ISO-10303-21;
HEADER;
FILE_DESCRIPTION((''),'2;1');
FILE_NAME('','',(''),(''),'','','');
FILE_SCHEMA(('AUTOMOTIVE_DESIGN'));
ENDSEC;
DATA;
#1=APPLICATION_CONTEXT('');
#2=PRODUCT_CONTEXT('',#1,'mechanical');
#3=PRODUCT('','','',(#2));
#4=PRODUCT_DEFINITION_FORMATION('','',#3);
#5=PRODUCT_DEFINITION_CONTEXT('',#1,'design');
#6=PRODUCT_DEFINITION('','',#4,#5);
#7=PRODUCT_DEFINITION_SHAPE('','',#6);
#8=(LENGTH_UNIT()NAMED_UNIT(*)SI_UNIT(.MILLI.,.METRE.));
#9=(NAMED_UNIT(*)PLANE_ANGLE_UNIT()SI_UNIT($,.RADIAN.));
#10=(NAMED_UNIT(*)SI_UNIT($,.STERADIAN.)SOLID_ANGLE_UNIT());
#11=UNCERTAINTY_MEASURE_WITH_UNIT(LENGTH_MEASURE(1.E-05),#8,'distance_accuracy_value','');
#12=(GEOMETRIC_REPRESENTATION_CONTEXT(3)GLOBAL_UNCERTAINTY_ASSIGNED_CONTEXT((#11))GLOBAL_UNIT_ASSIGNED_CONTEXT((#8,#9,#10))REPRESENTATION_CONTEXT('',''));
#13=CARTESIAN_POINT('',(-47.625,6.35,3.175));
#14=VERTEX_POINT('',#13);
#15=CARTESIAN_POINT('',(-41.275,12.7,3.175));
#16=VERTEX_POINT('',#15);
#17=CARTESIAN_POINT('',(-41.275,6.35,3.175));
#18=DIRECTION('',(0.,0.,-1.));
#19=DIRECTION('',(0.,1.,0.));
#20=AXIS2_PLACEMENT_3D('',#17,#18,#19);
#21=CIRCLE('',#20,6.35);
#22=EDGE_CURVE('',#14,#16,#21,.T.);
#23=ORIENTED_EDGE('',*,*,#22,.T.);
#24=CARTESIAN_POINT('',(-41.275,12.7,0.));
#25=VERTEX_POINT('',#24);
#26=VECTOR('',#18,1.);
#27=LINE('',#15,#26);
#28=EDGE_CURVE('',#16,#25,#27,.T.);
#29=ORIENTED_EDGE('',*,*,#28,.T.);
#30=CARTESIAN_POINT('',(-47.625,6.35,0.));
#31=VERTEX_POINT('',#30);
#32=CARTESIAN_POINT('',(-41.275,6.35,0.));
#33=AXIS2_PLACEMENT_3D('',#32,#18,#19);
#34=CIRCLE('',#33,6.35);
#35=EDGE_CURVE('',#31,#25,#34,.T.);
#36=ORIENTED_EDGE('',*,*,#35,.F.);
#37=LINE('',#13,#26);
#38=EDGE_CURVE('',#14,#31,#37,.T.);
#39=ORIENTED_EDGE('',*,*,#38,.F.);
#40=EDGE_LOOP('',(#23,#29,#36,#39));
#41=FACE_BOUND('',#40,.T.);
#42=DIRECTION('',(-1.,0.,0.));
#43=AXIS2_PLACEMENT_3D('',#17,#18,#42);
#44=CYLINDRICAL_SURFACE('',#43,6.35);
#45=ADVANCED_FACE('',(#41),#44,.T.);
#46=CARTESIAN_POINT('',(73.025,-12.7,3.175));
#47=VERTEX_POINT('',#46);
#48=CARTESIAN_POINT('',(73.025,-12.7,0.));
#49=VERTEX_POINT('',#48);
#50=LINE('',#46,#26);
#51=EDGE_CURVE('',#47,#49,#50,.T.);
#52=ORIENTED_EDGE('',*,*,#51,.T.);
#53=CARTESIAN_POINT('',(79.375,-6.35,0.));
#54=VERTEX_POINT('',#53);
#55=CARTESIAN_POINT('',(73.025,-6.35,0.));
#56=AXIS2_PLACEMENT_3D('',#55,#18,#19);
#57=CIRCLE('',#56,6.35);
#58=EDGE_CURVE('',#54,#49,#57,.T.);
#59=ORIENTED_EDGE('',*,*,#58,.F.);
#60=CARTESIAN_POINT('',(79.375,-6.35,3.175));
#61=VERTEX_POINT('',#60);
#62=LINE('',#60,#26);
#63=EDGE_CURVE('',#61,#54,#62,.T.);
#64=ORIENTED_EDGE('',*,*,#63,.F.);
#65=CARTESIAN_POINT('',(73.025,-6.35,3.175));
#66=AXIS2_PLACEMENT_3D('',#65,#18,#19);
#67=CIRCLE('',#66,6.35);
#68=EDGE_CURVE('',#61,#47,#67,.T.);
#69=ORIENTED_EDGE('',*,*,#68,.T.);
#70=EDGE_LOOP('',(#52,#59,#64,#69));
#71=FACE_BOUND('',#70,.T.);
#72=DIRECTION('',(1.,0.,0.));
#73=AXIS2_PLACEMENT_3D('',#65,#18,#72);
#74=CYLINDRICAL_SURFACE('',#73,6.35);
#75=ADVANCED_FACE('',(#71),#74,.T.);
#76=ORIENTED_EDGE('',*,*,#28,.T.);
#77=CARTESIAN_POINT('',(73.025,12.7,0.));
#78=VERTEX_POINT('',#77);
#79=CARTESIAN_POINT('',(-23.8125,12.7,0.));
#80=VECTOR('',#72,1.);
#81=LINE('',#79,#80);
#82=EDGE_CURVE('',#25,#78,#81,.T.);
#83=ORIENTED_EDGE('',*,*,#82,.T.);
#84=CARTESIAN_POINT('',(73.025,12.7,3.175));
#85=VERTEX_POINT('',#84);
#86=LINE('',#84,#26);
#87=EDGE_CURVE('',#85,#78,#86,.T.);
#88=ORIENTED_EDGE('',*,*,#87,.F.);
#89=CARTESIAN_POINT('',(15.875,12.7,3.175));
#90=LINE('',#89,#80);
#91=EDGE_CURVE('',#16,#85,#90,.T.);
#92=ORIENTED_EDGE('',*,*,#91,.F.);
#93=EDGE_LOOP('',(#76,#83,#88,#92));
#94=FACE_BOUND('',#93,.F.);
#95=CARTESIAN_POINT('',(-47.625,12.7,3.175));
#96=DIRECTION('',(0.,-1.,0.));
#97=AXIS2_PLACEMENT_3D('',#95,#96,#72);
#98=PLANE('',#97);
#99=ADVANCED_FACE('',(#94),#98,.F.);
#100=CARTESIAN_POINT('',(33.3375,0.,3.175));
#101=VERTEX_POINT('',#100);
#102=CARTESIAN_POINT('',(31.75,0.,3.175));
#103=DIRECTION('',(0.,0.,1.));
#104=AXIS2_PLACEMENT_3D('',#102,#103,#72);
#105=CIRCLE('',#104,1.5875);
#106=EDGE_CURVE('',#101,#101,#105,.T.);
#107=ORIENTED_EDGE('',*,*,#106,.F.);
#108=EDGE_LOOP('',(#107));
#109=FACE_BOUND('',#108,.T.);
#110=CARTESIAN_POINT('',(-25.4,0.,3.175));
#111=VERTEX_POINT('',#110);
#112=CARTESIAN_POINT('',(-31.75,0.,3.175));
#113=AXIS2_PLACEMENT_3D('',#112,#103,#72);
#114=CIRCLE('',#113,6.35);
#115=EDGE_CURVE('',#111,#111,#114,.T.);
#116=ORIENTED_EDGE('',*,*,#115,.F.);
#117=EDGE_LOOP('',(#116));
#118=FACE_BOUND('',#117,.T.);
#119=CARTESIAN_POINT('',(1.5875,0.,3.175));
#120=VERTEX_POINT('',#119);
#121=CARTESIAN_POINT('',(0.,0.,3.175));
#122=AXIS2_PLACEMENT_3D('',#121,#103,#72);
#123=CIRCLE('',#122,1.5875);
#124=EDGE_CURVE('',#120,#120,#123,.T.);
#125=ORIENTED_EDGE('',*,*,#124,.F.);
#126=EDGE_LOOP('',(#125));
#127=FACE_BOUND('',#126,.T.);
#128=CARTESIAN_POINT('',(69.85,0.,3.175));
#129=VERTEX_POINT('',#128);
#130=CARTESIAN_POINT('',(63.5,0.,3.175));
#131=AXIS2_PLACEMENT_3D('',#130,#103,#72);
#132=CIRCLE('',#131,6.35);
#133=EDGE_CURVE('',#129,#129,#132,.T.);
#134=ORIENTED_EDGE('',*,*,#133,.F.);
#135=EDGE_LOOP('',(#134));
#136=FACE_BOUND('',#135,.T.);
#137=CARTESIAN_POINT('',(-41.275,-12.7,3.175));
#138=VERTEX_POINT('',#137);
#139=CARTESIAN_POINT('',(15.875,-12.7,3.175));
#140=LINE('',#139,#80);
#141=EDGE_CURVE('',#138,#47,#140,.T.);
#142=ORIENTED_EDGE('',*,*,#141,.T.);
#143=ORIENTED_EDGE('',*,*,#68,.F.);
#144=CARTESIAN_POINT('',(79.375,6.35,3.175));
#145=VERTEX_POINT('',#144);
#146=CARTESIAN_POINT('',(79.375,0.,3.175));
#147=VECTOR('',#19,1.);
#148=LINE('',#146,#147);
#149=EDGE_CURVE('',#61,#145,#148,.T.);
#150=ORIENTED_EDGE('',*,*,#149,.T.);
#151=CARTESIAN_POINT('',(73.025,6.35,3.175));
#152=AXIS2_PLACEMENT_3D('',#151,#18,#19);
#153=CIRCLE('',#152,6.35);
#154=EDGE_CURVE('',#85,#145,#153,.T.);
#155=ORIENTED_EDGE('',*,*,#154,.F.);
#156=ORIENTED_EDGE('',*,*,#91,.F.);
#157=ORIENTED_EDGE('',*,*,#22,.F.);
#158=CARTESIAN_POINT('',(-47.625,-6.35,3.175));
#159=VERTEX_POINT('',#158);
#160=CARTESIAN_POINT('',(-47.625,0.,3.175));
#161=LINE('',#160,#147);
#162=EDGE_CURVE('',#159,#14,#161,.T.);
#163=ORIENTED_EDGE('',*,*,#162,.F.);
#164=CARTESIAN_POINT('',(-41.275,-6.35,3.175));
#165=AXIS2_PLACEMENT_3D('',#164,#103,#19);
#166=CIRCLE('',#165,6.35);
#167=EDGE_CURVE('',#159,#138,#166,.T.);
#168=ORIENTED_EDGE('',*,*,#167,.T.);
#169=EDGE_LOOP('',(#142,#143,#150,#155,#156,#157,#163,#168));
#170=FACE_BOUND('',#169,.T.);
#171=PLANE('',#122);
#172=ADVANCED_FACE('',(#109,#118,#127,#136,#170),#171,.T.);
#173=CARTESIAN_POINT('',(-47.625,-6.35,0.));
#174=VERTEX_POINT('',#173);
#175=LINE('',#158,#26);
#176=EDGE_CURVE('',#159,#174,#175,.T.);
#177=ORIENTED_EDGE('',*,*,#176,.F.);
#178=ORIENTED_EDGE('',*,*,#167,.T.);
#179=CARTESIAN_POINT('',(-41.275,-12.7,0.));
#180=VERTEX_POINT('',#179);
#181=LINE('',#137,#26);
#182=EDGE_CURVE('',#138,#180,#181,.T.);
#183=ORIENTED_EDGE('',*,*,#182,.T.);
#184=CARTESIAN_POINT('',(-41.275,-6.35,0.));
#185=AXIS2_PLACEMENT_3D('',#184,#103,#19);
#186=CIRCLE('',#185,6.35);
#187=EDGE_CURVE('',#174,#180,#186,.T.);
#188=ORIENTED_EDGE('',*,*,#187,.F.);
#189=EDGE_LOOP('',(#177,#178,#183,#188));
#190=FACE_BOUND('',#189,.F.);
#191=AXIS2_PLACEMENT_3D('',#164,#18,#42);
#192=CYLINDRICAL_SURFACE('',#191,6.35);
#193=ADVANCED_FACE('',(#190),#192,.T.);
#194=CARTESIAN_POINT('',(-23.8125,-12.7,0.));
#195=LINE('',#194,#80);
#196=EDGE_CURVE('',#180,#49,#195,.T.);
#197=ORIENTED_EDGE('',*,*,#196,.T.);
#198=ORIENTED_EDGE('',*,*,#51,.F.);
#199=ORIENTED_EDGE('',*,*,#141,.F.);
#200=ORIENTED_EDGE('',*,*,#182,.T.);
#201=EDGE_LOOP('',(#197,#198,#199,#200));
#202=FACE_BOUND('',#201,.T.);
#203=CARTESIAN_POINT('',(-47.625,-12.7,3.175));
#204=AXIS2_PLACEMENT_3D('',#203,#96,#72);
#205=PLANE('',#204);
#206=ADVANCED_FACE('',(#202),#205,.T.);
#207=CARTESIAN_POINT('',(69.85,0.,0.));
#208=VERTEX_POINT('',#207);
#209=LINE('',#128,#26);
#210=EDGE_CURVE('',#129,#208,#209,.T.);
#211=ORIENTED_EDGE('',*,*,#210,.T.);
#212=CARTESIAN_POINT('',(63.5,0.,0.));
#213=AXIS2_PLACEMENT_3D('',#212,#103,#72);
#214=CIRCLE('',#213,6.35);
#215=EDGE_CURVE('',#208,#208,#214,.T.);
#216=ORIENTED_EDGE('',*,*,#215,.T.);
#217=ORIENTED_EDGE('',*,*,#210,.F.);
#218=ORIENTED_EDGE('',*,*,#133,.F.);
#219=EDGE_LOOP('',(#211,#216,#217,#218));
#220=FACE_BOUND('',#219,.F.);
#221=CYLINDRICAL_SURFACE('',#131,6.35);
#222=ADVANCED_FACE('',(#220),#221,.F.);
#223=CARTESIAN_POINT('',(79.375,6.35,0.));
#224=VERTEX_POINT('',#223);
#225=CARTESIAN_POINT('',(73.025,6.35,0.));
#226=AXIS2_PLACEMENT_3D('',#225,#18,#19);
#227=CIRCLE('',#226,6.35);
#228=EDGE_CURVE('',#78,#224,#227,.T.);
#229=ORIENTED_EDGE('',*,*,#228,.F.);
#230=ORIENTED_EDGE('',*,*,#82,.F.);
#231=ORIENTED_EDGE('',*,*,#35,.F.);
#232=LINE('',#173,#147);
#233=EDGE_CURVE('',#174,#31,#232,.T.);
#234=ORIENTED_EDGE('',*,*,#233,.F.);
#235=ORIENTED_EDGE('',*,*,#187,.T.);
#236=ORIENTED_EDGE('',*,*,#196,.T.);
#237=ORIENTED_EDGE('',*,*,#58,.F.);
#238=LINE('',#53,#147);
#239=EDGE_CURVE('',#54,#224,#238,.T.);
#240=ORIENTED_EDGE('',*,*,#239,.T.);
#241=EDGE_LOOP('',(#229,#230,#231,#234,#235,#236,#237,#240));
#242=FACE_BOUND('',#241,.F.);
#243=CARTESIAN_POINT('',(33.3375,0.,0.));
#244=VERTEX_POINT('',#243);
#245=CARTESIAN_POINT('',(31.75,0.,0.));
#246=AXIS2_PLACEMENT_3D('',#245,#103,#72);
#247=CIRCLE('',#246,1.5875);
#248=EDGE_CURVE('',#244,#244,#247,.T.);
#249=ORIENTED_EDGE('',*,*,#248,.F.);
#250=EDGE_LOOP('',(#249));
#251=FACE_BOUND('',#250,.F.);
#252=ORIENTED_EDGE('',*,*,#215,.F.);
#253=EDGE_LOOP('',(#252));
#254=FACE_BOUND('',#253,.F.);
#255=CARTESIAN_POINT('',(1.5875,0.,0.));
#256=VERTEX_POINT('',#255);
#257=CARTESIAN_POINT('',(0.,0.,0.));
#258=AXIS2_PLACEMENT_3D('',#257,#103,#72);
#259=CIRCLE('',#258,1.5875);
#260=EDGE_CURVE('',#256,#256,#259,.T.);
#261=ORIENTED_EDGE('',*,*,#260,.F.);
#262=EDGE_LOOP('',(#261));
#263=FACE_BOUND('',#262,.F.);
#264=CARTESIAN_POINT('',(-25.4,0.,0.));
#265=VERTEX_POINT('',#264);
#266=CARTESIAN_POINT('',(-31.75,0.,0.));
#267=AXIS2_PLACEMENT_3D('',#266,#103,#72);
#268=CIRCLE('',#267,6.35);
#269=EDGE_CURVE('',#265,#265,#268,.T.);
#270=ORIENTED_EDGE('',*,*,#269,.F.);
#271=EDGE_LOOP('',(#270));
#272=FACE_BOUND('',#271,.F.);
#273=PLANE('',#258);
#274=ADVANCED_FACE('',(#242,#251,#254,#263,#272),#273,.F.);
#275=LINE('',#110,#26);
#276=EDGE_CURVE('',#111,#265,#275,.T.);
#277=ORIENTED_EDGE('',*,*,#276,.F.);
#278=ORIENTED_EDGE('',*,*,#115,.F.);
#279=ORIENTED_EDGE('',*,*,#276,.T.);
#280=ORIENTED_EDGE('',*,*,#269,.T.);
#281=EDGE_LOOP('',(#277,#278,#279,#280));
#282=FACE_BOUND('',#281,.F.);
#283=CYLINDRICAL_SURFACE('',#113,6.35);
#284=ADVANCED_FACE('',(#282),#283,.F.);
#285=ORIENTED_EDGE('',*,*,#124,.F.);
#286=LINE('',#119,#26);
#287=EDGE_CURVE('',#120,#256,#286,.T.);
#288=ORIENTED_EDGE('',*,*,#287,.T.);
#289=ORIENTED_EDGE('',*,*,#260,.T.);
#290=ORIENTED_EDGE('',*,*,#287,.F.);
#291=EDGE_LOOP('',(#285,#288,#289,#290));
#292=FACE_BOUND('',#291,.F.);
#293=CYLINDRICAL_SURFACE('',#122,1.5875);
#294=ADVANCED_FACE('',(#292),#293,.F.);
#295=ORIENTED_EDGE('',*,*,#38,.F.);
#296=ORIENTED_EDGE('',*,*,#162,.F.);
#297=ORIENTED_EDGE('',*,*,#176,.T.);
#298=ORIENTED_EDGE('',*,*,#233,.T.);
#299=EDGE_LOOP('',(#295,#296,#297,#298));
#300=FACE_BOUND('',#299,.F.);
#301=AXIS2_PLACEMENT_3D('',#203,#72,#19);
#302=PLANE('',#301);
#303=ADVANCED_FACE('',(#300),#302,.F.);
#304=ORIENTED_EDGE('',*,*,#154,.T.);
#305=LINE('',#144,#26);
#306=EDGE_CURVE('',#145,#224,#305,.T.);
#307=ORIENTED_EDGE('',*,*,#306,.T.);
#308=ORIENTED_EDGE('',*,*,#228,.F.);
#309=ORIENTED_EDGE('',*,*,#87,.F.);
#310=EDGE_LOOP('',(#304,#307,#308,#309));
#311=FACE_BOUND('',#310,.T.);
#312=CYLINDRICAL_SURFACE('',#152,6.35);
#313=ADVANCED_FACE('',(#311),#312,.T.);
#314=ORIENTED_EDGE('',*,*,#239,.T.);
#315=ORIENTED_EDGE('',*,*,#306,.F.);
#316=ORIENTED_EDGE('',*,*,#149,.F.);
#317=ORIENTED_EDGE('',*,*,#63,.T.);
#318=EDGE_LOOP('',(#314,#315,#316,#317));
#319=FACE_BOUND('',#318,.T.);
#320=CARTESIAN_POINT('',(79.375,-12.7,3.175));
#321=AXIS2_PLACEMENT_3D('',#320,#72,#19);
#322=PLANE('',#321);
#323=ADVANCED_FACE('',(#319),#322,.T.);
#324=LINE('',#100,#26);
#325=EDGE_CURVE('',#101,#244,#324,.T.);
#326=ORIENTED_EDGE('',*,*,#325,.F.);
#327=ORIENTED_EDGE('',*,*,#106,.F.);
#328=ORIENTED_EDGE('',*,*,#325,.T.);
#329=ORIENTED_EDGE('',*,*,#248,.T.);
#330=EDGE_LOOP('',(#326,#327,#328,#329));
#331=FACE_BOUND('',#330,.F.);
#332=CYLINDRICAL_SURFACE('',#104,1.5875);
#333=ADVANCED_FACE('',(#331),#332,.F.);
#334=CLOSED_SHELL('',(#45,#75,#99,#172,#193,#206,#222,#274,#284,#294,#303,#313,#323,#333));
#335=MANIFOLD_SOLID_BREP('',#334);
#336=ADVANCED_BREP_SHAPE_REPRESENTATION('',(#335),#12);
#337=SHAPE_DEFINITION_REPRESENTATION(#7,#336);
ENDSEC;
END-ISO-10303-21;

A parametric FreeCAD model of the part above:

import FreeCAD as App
import Part
import Sketcher
from FreeCAD import Vector
Q = App.Units.Quantity


def edges_at(feature, points):
    """Names of the edges that pass closest to the given points."""
    edges = feature.Shape.Edges
    near = lambda p: min(range(len(edges)), key=lambda i: edges[i].distToShape(Part.Vertex(*p))[0])
    return sorted({f"Edge{near(p) + 1}" for p in points})

doc = App.newDocument("Part")
body = doc.addObject("PartDesign::Body", "Body")

# Sketch on XY plane
sketch1 = body.newObject("Sketcher::SketchObject", "Sketch")
sketch1.AttachmentSupport = (doc.getObject("XY_Plane"), [""])
sketch1.MapMode = "FlatFace"
sketch1.addGeometry([
    Part.LineSegment(Vector(-102, 76, 0), Vector(-102, -76, 0)),
    Part.LineSegment(Vector(-102, -76, 0), Vector(102, -76, 0)),
    Part.LineSegment(Vector(102, -76, 0), Vector(102, 76, 0)),
    Part.LineSegment(Vector(102, 76, 0), Vector(-102, 76, 0)),
], False)
sketch1.addConstraint([
    Sketcher.Constraint("Coincident", 0, 2, 1, 1),
    Sketcher.Constraint("Coincident", 1, 2, 2, 1),
    Sketcher.Constraint("Coincident", 2, 2, 3, 1),
    Sketcher.Constraint("Coincident", 3, 2, 0, 1),
    Sketcher.Constraint("Vertical", 0),
    Sketcher.Constraint("Horizontal", 1),
    Sketcher.Constraint("Vertical", 2),
    Sketcher.Constraint("Horizontal", 3),
    Sketcher.Constraint("Symmetric", 0, 2, 2, 2, -1, 1),
    Sketcher.Constraint("DistanceX", 1, 1, 1, 2, Q("8 in")),
    Sketcher.Constraint("DistanceY", 0, 2, 0, 1, Q("6 in")),
])
pad1 = body.newObject("PartDesign::Pad", "Pad")
pad1.Profile = sketch1
pad1.Length = Q("0.125 in")

# Sketch on XY plane
sketch2 = body.newObject("Sketcher::SketchObject", "Sketch001")
sketch2.AttachmentSupport = (doc.getObject("XY_Plane"), [""])
sketch2.MapMode = "FlatFace"
sketch2.AttachmentOffset = App.Placement(Vector(0, 0, 0.125 * 25.4), App.Rotation())
sketch2.addGeometry([
    Part.Circle(Vector(-32, 0, 0), Vector(0, 0, 1), 6),
    Part.Circle(Vector(64, 0, 0), Vector(0, 0, 1), 6),
], False)
sketch2.addConstraint([
    Sketcher.Constraint("Equal", 0, 1),
    Sketcher.Constraint("PointOnObject", 0, 3, -1),
    Sketcher.Constraint("PointOnObject", 1, 3, -1),
    Sketcher.Constraint("Diameter", 0, Q("0.5 in")),
    Sketcher.Constraint("DistanceX", -1, 1, 1, 3, Q("2.5 in")),
    Sketcher.Constraint("DistanceX", 0, 3, -1, 1, Q("1.25 in")),
])
pocket1 = body.newObject("PartDesign::Pocket", "Pocket")
pocket1.Profile = sketch2
pocket1.Type = "ThroughAll"

# Sketch on XY plane
sketch3 = body.newObject("Sketcher::SketchObject", "Sketch002")
sketch3.AttachmentSupport = (doc.getObject("XY_Plane"), [""])
sketch3.MapMode = "FlatFace"
sketch3.AttachmentOffset = App.Placement(Vector(0, 0, 0.125 * 25.4), App.Rotation())
sketch3.addGeometry([
    Part.LineSegment(Vector(-102, 76, 0), Vector(-102, -76, 0)),  # 0
    Part.LineSegment(Vector(-102, -76, 0), Vector(102, -76, 0)),  # 1
    Part.LineSegment(Vector(102, -76, 0), Vector(102, 76, 0)),  # 2
    Part.LineSegment(Vector(102, 76, 0), Vector(-102, 76, 0)),  # 3
    Part.LineSegment(Vector(79, -13, 0), Vector(-48, -13, 0)),  # 4
    Part.LineSegment(Vector(-48, -13, 0), Vector(-48, 13, 0)),  # 5
    Part.LineSegment(Vector(-48, 13, 0), Vector(79, 13, 0)),  # 6
    Part.LineSegment(Vector(79, 13, 0), Vector(79, -13, 0)),  # 7
], False)
sketch3.addConstraint([
    Sketcher.Constraint("Coincident", 0, 2, 1, 1),
    Sketcher.Constraint("Coincident", 1, 2, 2, 1),
    Sketcher.Constraint("Coincident", 2, 2, 3, 1),
    Sketcher.Constraint("Coincident", 3, 2, 0, 1),
    Sketcher.Constraint("Coincident", 4, 2, 5, 1),
    Sketcher.Constraint("Coincident", 5, 2, 6, 1),
    Sketcher.Constraint("Coincident", 6, 2, 7, 1),
    Sketcher.Constraint("Coincident", 7, 2, 4, 1),
    Sketcher.Constraint("Vertical", 0),
    Sketcher.Constraint("Horizontal", 1),
    Sketcher.Constraint("Vertical", 2),
    Sketcher.Constraint("Horizontal", 3),
    Sketcher.Constraint("Horizontal", 4),
    Sketcher.Constraint("Vertical", 5),
    Sketcher.Constraint("Horizontal", 6),
    Sketcher.Constraint("Vertical", 7),
    Sketcher.Constraint("Symmetric", 0, 2, 2, 2, -1, 1),
    Sketcher.Constraint("DistanceX", 1, 1, 1, 2, Q("8 in")),
    Sketcher.Constraint("DistanceX", 4, 2, 4, 1, Q("5 in")),
    Sketcher.Constraint("DistanceY", 0, 2, 0, 1, Q("6 in")),
    Sketcher.Constraint("DistanceY", 5, 1, 5, 2, Q("1 in")),
    Sketcher.Constraint("DistanceY", 4, 2, -1, 1, Q("0.5 in")),
    Sketcher.Constraint("DistanceX", 4, 2, -1, 1, Q("1.875 in")),
])
pocket2 = body.newObject("PartDesign::Pocket", "Pocket001")
pocket2.Profile = sketch3
pocket2.Type = "ThroughAll"
doc.recompute()

fillet = body.newObject("PartDesign::Fillet", "Fillet")
fillet.Base = (pocket2, edges_at(pocket2, [
    (-47.625, 12.7, 1.587),
    (-47.625, -12.7, 1.587),
    (79.375, -12.7, 1.587),
    (79.375, 12.7, 1.587),
]))
fillet.Radius = Q("0.25 in")

# Sketch on XY plane
sketch4 = body.newObject("Sketcher::SketchObject", "Sketch003")
sketch4.AttachmentSupport = (doc.getObject("XY_Plane"), [""])
sketch4.MapMode = "FlatFace"
sketch4.AttachmentOffset = App.Placement(Vector(0, 0, 0.125 * 25.4), App.Rotation())
sketch4.addGeometry([
    Part.Circle(Vector(0, 0, 0), Vector(0, 0, 1), 1.6),
    Part.Circle(Vector(31.8, 0, 0), Vector(0, 0, 1), 1.6),
], False)
sketch4.addConstraint([
    Sketcher.Constraint("Coincident", 0, 3, -1, 1),
    Sketcher.Constraint("Equal", 0, 1),
    Sketcher.Constraint("PointOnObject", 1, 3, -1),
    Sketcher.Constraint("Diameter", 0, Q("0.125 in")),
    Sketcher.Constraint("DistanceX", -1, 1, 1, 3, Q("1.25 in")),
])
pocket3 = body.newObject("PartDesign::Pocket", "Pocket002")
pocket3.Profile = sketch4
pocket3.Type = "ThroughAll"

doc.recompute()
